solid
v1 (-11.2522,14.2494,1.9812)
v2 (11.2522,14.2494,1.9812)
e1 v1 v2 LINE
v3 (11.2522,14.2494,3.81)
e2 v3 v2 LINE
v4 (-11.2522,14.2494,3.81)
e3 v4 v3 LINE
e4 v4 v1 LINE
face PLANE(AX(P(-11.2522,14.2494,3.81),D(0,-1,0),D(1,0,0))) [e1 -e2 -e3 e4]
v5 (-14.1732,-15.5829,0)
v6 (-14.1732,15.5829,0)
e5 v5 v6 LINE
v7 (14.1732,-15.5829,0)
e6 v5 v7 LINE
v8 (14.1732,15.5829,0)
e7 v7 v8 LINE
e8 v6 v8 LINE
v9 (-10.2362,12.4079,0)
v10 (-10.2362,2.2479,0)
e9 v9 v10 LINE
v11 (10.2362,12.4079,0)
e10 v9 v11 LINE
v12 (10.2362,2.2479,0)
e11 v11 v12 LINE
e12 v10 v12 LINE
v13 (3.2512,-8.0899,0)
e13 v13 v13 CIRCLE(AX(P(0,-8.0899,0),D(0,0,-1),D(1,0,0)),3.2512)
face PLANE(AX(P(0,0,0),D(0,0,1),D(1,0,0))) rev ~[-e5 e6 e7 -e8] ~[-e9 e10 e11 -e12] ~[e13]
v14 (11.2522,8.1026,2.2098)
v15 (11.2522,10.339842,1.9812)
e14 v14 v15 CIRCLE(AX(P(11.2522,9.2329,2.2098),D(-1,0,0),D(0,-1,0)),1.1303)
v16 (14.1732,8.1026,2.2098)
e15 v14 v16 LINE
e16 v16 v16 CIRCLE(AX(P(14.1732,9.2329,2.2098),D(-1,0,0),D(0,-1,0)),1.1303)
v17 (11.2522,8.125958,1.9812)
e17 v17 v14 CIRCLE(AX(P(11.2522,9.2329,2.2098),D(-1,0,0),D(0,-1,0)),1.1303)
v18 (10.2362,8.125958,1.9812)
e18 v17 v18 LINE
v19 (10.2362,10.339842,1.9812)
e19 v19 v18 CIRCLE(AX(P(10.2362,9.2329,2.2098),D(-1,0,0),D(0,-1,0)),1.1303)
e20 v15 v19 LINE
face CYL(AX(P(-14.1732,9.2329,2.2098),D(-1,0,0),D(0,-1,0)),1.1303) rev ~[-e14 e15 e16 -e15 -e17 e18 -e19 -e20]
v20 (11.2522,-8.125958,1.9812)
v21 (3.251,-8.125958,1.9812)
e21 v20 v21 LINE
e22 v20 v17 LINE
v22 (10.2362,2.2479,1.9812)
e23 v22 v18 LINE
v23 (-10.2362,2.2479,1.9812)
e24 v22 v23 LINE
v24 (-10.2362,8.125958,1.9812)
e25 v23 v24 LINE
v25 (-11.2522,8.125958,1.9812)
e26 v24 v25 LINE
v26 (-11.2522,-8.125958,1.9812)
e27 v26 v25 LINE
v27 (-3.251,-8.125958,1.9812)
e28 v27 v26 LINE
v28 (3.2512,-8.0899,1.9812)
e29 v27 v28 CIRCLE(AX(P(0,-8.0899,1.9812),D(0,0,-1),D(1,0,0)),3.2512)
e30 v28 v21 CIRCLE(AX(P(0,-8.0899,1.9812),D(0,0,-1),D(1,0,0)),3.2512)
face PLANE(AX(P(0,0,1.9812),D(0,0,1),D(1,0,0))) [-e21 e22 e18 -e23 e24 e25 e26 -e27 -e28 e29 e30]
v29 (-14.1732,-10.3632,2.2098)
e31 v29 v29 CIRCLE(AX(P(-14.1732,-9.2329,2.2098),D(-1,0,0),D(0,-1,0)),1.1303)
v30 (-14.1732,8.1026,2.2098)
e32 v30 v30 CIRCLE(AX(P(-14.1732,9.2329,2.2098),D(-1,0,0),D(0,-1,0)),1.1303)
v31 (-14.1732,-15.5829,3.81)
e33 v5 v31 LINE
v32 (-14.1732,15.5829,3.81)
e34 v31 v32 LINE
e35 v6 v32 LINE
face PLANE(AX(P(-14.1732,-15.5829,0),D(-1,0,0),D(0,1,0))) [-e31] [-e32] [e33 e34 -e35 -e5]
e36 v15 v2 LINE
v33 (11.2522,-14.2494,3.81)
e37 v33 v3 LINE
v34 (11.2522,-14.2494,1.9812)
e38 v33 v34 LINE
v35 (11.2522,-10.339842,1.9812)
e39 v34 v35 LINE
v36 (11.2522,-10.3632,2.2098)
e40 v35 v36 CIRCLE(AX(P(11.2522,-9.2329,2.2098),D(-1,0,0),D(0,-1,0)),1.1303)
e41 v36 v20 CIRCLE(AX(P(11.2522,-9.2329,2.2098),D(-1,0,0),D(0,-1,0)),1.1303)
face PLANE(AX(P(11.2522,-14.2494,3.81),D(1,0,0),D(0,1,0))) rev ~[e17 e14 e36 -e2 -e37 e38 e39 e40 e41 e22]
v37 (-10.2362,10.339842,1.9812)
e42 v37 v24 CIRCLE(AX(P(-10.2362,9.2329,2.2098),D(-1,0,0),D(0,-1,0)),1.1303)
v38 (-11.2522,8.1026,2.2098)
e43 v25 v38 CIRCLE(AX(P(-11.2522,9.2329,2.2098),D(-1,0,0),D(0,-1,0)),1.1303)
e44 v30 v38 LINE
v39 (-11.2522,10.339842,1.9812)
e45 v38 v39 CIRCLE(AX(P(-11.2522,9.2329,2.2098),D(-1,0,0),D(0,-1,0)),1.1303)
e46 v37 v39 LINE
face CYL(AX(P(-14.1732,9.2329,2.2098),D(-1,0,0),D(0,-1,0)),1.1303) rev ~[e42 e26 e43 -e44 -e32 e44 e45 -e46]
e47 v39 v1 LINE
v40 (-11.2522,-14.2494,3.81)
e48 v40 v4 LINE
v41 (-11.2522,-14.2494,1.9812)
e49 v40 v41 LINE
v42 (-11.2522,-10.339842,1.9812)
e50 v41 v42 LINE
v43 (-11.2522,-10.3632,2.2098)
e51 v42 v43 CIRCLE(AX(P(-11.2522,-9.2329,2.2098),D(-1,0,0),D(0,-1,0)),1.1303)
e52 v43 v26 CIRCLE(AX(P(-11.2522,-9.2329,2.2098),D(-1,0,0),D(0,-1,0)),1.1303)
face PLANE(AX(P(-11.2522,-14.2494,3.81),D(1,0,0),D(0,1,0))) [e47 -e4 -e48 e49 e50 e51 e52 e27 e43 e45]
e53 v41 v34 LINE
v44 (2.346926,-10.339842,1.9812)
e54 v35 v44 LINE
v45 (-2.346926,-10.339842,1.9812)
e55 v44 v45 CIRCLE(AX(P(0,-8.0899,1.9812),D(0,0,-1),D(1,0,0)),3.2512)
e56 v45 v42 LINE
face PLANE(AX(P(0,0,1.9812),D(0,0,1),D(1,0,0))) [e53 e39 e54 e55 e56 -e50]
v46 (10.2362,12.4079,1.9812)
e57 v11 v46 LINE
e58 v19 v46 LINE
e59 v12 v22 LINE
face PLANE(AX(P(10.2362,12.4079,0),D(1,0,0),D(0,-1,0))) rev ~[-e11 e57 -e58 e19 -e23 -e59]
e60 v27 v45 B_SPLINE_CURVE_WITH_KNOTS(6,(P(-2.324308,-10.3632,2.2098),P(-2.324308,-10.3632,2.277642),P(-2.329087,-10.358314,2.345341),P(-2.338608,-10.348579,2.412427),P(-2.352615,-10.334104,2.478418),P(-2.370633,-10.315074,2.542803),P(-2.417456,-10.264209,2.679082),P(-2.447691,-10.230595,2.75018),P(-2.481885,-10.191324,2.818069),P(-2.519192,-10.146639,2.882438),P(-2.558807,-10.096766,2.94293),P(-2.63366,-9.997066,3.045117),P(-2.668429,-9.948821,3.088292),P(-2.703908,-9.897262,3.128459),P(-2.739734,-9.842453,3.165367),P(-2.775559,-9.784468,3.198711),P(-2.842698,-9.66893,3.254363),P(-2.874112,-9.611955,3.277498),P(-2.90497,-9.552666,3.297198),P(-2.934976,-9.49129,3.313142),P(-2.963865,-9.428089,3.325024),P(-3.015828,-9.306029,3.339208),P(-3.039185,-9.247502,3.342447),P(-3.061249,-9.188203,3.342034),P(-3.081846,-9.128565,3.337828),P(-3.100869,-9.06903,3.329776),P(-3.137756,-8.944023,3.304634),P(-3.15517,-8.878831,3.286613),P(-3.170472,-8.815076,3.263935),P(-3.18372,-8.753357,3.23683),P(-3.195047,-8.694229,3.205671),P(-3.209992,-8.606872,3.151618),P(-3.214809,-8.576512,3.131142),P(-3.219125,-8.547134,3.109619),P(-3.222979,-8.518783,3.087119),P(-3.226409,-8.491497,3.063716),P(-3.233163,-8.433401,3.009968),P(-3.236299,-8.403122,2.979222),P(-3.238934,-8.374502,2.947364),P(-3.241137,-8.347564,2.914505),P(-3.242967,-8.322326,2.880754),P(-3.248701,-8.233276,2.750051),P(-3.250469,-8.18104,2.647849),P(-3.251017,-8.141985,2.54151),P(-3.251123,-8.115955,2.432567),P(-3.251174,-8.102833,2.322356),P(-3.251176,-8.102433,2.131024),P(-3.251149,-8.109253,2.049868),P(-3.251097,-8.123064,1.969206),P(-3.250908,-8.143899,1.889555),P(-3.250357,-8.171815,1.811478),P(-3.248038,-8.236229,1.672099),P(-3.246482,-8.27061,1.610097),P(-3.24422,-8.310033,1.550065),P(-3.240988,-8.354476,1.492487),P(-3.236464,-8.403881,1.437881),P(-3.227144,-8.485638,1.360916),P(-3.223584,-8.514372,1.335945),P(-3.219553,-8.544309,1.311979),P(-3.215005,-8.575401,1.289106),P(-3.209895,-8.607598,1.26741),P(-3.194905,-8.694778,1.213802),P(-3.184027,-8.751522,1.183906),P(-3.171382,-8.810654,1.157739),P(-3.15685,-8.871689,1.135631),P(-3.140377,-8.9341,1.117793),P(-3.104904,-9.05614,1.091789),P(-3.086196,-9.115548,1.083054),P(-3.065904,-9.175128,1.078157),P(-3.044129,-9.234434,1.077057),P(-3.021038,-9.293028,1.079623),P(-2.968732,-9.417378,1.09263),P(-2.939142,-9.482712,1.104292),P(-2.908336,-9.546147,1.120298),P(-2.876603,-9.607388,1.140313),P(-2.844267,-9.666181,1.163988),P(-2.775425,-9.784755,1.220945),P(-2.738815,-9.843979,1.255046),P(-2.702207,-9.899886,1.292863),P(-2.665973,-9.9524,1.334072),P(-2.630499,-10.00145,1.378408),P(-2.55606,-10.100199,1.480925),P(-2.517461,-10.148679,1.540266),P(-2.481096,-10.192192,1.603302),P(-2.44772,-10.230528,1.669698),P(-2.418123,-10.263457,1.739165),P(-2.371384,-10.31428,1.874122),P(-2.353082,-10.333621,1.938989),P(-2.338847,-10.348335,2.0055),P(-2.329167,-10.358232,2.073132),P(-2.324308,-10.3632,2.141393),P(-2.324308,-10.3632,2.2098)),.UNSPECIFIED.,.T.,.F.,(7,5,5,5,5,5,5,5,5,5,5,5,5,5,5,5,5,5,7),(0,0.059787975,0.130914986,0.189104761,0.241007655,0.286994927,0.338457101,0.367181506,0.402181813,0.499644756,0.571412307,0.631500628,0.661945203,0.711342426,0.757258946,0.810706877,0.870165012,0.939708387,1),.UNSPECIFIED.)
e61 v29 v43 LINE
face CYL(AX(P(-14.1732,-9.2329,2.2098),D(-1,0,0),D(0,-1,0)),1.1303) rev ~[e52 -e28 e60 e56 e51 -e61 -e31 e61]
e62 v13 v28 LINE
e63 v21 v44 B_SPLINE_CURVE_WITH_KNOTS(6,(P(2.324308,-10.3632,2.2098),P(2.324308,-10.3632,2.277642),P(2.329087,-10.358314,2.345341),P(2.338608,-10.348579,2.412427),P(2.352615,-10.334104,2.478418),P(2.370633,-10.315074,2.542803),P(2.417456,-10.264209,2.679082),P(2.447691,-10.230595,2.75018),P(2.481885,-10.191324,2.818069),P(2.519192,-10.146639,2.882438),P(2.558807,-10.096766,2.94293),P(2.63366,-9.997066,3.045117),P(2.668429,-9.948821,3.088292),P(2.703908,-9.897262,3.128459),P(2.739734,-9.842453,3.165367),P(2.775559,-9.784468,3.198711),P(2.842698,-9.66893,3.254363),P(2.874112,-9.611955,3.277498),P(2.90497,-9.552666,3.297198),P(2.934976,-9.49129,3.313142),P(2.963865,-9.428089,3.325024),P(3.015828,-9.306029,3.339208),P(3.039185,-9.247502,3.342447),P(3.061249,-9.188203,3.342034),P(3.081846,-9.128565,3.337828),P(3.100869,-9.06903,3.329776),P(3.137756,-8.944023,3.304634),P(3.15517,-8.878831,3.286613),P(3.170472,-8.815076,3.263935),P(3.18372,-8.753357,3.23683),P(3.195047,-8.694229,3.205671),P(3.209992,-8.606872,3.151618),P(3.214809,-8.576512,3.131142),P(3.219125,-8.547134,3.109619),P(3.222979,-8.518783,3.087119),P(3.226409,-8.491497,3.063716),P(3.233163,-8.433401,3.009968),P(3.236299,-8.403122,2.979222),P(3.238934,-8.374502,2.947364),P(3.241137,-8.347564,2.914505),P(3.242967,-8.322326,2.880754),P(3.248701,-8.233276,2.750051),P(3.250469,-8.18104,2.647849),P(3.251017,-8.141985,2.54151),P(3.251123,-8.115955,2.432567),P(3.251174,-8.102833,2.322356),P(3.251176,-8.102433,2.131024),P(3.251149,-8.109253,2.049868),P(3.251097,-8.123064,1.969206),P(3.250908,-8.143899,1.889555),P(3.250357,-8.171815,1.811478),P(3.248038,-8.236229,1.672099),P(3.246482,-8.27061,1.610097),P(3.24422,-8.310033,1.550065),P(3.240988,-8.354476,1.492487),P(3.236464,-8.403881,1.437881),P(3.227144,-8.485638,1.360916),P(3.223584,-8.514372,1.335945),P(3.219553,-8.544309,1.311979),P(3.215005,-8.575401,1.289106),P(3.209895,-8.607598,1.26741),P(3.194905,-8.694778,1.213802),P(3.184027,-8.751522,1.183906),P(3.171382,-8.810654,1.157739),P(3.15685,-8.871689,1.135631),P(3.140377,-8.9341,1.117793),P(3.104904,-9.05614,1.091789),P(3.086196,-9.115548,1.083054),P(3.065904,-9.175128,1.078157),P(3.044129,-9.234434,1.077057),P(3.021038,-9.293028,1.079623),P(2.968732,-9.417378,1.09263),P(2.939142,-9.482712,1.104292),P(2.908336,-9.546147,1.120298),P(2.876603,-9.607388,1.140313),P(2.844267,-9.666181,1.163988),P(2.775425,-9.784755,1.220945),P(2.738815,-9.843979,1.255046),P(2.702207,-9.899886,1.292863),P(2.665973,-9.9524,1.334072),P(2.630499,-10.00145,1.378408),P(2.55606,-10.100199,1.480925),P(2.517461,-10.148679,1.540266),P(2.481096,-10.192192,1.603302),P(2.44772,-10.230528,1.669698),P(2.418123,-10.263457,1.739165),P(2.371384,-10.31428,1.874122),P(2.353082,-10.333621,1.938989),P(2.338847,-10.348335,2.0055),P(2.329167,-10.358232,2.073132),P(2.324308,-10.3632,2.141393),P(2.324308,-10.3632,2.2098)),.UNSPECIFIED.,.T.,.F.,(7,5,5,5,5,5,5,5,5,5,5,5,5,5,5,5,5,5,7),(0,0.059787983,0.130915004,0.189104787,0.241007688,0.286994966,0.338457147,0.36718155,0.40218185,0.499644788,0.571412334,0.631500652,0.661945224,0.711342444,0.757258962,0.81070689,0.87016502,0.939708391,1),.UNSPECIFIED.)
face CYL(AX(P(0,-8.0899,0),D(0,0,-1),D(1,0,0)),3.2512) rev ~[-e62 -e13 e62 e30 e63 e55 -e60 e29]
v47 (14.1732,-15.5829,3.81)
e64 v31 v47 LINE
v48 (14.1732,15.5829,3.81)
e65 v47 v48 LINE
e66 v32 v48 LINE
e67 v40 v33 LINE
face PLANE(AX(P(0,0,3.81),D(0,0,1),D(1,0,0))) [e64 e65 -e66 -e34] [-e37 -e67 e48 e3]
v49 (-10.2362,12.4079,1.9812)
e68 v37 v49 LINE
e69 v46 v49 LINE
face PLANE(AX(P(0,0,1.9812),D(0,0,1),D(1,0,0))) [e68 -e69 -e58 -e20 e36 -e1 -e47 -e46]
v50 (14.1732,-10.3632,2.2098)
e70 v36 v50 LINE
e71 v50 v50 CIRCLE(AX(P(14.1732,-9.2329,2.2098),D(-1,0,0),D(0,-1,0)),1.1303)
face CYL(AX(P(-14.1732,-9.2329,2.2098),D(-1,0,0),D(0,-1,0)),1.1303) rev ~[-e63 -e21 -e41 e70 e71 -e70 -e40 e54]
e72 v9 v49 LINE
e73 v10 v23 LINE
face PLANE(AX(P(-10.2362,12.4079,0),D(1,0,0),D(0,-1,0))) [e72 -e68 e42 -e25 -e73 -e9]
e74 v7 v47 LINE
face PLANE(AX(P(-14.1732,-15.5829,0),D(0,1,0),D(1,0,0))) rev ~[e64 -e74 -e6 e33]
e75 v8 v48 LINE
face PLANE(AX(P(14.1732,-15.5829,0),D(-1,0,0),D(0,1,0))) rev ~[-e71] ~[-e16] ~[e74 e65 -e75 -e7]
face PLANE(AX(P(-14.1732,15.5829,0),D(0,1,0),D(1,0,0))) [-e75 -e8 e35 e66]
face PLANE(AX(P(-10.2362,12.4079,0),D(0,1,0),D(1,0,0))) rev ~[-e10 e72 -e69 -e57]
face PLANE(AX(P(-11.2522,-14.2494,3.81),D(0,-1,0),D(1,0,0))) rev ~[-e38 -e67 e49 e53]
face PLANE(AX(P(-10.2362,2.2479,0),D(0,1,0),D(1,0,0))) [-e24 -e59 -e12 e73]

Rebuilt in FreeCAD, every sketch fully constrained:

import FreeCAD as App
import Part
import Sketcher
from FreeCAD import Vector
Q = App.Units.Quantity

doc = App.newDocument("Part")
body = doc.addObject("PartDesign::Body", "Body")

sketch1 = body.newObject("Sketcher::SketchObject", "Sketch")
sketch1.AttachmentSupport = (doc.getObject("XY_Plane"), [""])
sketch1.MapMode = "FlatFace"
sketch1.addGeometry([
    Part.LineSegment(Vector(-14, 16, 0), Vector(-14, -16, 0)),
    Part.LineSegment(Vector(-14, -16, 0), Vector(14, -16, 0)),
    Part.LineSegment(Vector(14, -16, 0), Vector(14, 16, 0)),
    Part.LineSegment(Vector(14, 16, 0), Vector(-14, 16, 0)),
], False)
sketch1.addConstraint([
    Sketcher.Constraint("Coincident", 0, 2, 1, 1),
    Sketcher.Constraint("Coincident", 1, 2, 2, 1),
    Sketcher.Constraint("Coincident", 2, 2, 3, 1),
    Sketcher.Constraint("Coincident", 3, 2, 0, 1),
    Sketcher.Constraint("Vertical", 0),
    Sketcher.Constraint("Horizontal", 1),
    Sketcher.Constraint("Vertical", 2),
    Sketcher.Constraint("Horizontal", 3),
    Sketcher.Constraint("Symmetric", 0, 2, 2, 2, -1, 1),
    Sketcher.Constraint("DistanceX", 1, 1, 1, 2, Q("1.116 in")),
    Sketcher.Constraint("DistanceY", 0, 2, 0, 1, Q("1.227 in")),
])
pad1 = body.newObject("PartDesign::Pad", "Pad")
pad1.Profile = sketch1
pad1.Length = Q("0.15 in")

sketch2 = body.newObject("Sketcher::SketchObject", "Sketch001")
sketch2.AttachmentSupport = (doc.getObject("XY_Plane"), [""])
sketch2.MapMode = "FlatFace"
sketch2.AttachmentOffset = App.Placement(Vector(0, 0, 0.15 * 25.4), App.Rotation())
sketch2.addGeometry([
    Part.LineSegment(Vector(-11, 14, 0), Vector(-11, -14, 0)),
    Part.LineSegment(Vector(-11, -14, 0), Vector(11, -14, 0)),
    Part.LineSegment(Vector(11, -14, 0), Vector(11, 14, 0)),
    Part.LineSegment(Vector(11, 14, 0), Vector(-11, 14, 0)),
], False)
sketch2.addConstraint([
    Sketcher.Constraint("Coincident", 0, 2, 1, 1),
    Sketcher.Constraint("Coincident", 1, 2, 2, 1),
    Sketcher.Constraint("Coincident", 2, 2, 3, 1),
    Sketcher.Constraint("Coincident", 3, 2, 0, 1),
    Sketcher.Constraint("Vertical", 0),
    Sketcher.Constraint("Horizontal", 1),
    Sketcher.Constraint("Vertical", 2),
    Sketcher.Constraint("Horizontal", 3),
    Sketcher.Constraint("Symmetric", 0, 2, 2, 2, -1, 1),
    Sketcher.Constraint("DistanceX", 1, 1, 1, 2, Q("0.886 in")),
    Sketcher.Constraint("DistanceY", 0, 2, 0, 1, Q("1.122 in")),
])
pocket1 = body.newObject("PartDesign::Pocket", "Pocket")
pocket1.Profile = sketch2
pocket1.Length = Q("0.072 in")

sketch3 = body.newObject("Sketcher::SketchObject", "Sketch002")
sketch3.AttachmentSupport = (doc.getObject("YZ_Plane"), [""])
sketch3.MapMode = "FlatFace"
sketch3.AttachmentOffset = App.Placement(Vector(0, 0, -0.558 * 25.4), App.Rotation())
sketch3.addGeometry([
    Part.Circle(Vector(-9.2, 2.2, 0), Vector(0, 0, 1), 1.1),
    Part.Circle(Vector(9.2, 2.2, 0), Vector(0, 0, 1), 1.1),
], False)
sketch3.addConstraint([
    Sketcher.Constraint("Equal", 0, 1),
    Sketcher.Constraint("Symmetric", 0, 3, 1, 3, -2),
    Sketcher.Constraint("Diameter", 0, Q("0.089 in")),
    Sketcher.Constraint("DistanceY", -1, 1, 0, 3, Q("0.087 in")),
    Sketcher.Constraint("DistanceX", 0, 3, 1, 3, Q("0.727 in")),
])
pocket2 = body.newObject("PartDesign::Pocket", "Pocket001")
pocket2.Profile = sketch3
pocket2.Type = "ThroughAll"
pocket2.Reversed = True

sketch4 = body.newObject("Sketcher::SketchObject", "Sketch003")
sketch4.AttachmentSupport = (doc.getObject("XY_Plane"), [""])
sketch4.MapMode = "FlatFace"
sketch4.addGeometry([
    Part.Circle(Vector(0, -8.1, 0), Vector(0, 0, 1), 3.3),
    Part.LineSegment(Vector(-10.2, 2.2, 0), Vector(-10.2, 12.4, 0)),
    Part.LineSegment(Vector(-10.2, 12.4, 0), Vector(10.2, 12.4, 0)),
    Part.LineSegment(Vector(10.2, 12.4, 0), Vector(10.2, 2.2, 0)),
    Part.LineSegment(Vector(10.2, 2.2, 0), Vector(-10.2, 2.2, 0)),
], False)
sketch4.addConstraint([
    Sketcher.Constraint("Coincident", 1, 2, 2, 1),
    Sketcher.Constraint("Coincident", 2, 2, 3, 1),
    Sketcher.Constraint("Coincident", 3, 2, 4, 1),
    Sketcher.Constraint("Coincident", 4, 2, 1, 1),
    Sketcher.Constraint("Vertical", 1),
    Sketcher.Constraint("Horizontal", 2),
    Sketcher.Constraint("Vertical", 3),
    Sketcher.Constraint("Horizontal", 4),
    Sketcher.Constraint("PointOnObject", 0, 3, -2),
    Sketcher.Constraint("Diameter", 0, Q("0.256 in")),
    Sketcher.Constraint("DistanceY", 1, 1, 1, 2, Q("0.4 in")),
    Sketcher.Constraint("DistanceX", 2, 1, 2, 2, Q("0.806 in")),
    Sketcher.Constraint("DistanceX", 1, 2, -1, 1, Q("0.403 in")),
    Sketcher.Constraint("DistanceY", 0, 3, 1, 2, Q("0.807 in")),
    Sketcher.Constraint("DistanceY", 0, 3, -1, 1, Q("0.3185 in")),
])
pocket3 = body.newObject("PartDesign::Pocket", "Pocket002")
pocket3.Profile = sketch4
pocket3.Type = "ThroughAll"
pocket3.Reversed = True

doc.recompute()
